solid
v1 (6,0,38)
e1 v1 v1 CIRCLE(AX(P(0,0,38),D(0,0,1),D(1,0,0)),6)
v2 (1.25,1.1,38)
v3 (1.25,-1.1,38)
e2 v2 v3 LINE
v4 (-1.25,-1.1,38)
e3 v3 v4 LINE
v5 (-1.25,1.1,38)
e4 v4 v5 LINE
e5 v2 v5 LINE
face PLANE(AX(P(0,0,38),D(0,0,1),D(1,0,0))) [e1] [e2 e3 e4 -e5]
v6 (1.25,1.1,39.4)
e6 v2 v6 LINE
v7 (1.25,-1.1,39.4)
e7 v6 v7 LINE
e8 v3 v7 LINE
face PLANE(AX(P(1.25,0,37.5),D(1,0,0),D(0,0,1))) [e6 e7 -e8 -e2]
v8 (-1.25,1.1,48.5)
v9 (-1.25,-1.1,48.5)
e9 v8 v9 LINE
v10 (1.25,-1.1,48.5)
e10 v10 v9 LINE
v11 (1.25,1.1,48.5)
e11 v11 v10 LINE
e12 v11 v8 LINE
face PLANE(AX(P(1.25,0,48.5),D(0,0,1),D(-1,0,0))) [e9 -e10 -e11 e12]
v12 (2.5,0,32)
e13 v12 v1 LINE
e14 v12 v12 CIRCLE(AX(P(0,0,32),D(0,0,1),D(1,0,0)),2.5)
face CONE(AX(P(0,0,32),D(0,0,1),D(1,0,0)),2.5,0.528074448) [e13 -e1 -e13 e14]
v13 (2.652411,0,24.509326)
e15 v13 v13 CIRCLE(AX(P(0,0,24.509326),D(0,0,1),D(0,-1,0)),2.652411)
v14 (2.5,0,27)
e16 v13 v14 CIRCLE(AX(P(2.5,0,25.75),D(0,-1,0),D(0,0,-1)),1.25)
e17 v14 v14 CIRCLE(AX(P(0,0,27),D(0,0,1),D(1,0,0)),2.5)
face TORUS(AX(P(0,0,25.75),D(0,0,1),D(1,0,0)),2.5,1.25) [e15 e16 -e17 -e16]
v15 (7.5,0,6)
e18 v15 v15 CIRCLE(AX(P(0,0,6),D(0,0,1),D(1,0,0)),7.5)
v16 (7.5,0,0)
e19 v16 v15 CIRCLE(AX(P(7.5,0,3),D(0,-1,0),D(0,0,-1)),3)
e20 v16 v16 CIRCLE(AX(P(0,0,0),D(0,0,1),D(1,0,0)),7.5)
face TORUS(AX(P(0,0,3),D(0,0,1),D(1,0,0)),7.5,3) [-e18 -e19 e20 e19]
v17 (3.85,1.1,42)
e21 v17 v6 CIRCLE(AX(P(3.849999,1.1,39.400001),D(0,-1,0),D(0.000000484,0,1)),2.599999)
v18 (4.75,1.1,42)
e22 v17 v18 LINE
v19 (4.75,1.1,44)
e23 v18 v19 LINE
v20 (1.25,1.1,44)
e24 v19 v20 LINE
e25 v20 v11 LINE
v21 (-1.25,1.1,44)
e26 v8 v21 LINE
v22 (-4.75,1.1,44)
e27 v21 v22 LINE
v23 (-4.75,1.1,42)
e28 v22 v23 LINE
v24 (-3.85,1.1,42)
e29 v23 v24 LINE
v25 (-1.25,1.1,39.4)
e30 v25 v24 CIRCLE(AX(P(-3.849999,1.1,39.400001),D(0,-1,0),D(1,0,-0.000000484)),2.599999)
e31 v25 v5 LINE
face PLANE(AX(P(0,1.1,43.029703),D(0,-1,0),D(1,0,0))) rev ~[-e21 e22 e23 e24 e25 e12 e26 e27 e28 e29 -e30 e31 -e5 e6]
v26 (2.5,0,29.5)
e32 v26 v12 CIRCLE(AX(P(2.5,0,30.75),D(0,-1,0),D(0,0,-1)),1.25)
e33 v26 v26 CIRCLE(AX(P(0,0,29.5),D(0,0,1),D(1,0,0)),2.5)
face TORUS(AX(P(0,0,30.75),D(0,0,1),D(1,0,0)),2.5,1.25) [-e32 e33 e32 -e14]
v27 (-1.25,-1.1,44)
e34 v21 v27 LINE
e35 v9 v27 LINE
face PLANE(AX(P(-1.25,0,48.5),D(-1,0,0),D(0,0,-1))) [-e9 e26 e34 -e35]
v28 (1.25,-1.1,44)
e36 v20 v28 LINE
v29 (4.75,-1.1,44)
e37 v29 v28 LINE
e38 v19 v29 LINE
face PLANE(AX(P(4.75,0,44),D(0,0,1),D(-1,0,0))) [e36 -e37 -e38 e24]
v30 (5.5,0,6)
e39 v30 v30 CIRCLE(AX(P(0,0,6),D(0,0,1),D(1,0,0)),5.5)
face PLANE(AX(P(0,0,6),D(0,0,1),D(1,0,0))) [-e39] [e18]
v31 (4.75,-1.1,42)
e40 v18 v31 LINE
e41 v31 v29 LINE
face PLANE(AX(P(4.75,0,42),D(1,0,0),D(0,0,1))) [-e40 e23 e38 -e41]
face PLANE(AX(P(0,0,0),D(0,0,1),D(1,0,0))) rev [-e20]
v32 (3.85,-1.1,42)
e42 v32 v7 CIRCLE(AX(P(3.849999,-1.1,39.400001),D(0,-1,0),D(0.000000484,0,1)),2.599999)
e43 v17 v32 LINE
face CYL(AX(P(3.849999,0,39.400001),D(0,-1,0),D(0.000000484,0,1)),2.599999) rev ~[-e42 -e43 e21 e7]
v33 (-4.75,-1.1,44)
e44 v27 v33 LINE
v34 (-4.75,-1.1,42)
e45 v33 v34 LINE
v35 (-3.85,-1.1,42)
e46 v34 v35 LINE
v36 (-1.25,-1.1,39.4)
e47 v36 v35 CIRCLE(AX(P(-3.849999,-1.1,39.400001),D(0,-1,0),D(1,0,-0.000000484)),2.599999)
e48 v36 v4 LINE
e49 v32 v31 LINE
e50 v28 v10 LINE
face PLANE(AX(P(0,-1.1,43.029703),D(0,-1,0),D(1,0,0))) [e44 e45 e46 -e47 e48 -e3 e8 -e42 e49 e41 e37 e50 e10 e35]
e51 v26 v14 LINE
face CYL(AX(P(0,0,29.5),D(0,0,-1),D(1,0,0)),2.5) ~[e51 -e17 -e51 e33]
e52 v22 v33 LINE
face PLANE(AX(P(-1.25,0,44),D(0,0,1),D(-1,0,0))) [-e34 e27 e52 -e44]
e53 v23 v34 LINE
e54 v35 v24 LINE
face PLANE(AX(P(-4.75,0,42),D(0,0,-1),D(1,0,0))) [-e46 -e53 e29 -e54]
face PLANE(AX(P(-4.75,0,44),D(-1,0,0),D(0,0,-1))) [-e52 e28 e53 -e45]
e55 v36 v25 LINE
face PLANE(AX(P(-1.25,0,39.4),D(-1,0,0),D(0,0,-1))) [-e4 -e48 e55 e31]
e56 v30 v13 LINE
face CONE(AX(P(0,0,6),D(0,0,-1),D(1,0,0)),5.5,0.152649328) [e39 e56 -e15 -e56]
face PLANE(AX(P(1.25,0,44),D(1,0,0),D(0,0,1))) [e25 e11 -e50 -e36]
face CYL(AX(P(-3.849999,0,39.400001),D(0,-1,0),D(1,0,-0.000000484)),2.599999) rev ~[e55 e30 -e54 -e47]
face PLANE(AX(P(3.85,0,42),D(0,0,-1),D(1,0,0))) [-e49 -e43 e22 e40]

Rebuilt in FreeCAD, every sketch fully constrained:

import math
import FreeCAD as App
import Part
import Sketcher
from FreeCAD import Vector
Q = App.Units.Quantity

doc = App.newDocument("Part")
body = doc.addObject("PartDesign::Body", "Body")

sketch1 = body.newObject("Sketcher::SketchObject", "Sketch")
sketch1.AttachmentSupport = (doc.getObject("XZ_Plane"), [""])
sketch1.MapMode = "FlatFace"
sketch1.addGeometry([
    Part.LineSegment(Vector(0, 0, 0), Vector(2.5, 0, 0)),
    Part.LineSegment(Vector(2.5, 0, 0), Vector(2.5, 24.5, 0)),
    Part.ArcOfCircle(Part.Circle(Vector(2.5, 25.8, 0), Vector(0, 0, 1), 1.2), math.radians(-90), math.radians(90)),
    Part.LineSegment(Vector(2.5, 27, 0), Vector(2.5, 29.5, 0)),
    Part.ArcOfCircle(Part.Circle(Vector(2.5, 30.8, 0), Vector(0, 0, 1), 1.2), math.radians(-90), math.radians(90)),
    Part.LineSegment(Vector(2.5, 32, 0), Vector(0, 32, 0)),
    Part.LineSegment(Vector(0, 32, 0), Vector(0, 0, 0)),
], False)
sketch1.addConstraint([
    Sketcher.Constraint("Coincident", 0, 2, 1, 1),
    Sketcher.Constraint("Coincident", 1, 2, 2, 1),
    Sketcher.Constraint("Coincident", 2, 2, 3, 1),
    Sketcher.Constraint("Coincident", 3, 2, 4, 1),
    Sketcher.Constraint("Tangent", 4, 2, 5, 1),
    Sketcher.Constraint("Coincident", 5, 2, 6, 1),
    Sketcher.Constraint("Coincident", 6, 2, 0, 1),
    Sketcher.Constraint("Horizontal", 0),
    Sketcher.Constraint("Vertical", 1),
    Sketcher.Constraint("Vertical", 3),
    Sketcher.Constraint("Horizontal", 5),
    Sketcher.Constraint("Vertical", 6),
    Sketcher.Constraint("Coincident", 6, 2, -1, 1),
    Sketcher.Constraint("Equal", 2, 4),
    Sketcher.Constraint("Vertical", 2, 3, 4, 3),
    Sketcher.Constraint("Vertical", 4, 3, 0, 2),
    Sketcher.Constraint("Vertical", 1, 2, 2, 2),
    Sketcher.Constraint("Equal", 5, 3),
    Sketcher.Constraint("DistanceY", 6, 2, 6, 1, Q("32 mm")),
    Sketcher.Constraint("Radius", 2, Q("1.25 mm")),
    Sketcher.Constraint("DistanceX", 0, 1, 0, 2, Q("2.5 mm")),
])
revolution = body.newObject("PartDesign::Revolution", "Revolution")
revolution.Profile = sketch1
revolution.ReferenceAxis = (sketch1, ["V_Axis"])
revolution.Angle = 360
body2 = doc.addObject("PartDesign::Body", "Body001")

sketch2 = body2.newObject("Sketcher::SketchObject", "Sketch001")
sketch2.AttachmentSupport = (doc.getObject("XZ_Plane001"), [""])
sketch2.MapMode = "FlatFace"
sketch2.addGeometry([
    Part.LineSegment(Vector(0, 0, 0), Vector(7.5, 0, 0)),
    Part.ArcOfCircle(Part.Circle(Vector(7.5, 3, 0), Vector(0, 0, 1), 3), math.radians(-90), math.radians(90)),
    Part.LineSegment(Vector(7.5, 6, 0), Vector(5.5, 6, 0)),
    Part.LineSegment(Vector(5.5, 6, 0), Vector(2.5, 25.5, 0)),
    Part.LineSegment(Vector(2.5, 25.5, 0), Vector(2.5, 32, 0)),
    Part.LineSegment(Vector(2.5, 32, 0), Vector(6, 38, 0)),
    Part.LineSegment(Vector(6, 38, 0), Vector(0, 38, 0)),
    Part.LineSegment(Vector(0, 38, 0), Vector(0, 0, 0)),
], False)
sketch2.addConstraint([
    Sketcher.Constraint("Tangent", 0, 2, 1, 1),
    Sketcher.Constraint("Tangent", 1, 2, 2, 1),
    Sketcher.Constraint("Coincident", 2, 2, 3, 1),
    Sketcher.Constraint("Coincident", 3, 2, 4, 1),
    Sketcher.Constraint("Coincident", 4, 2, 5, 1),
    Sketcher.Constraint("Coincident", 5, 2, 6, 1),
    Sketcher.Constraint("Coincident", 6, 2, 7, 1),
    Sketcher.Constraint("Coincident", 7, 2, 0, 1),
    Sketcher.Constraint("Horizontal", 0),
    Sketcher.Constraint("Horizontal", 2),
    Sketcher.Constraint("Vertical", 4),
    Sketcher.Constraint("Horizontal", 6),
    Sketcher.Constraint("Vertical", 7),
    Sketcher.Constraint("Coincident", 7, 2, -1, 1),
    Sketcher.Constraint("Radius", 1, Q("3 mm")),
    Sketcher.Constraint("DistanceX", 2, 2, 2, 1, Q("2 mm")),
    Sketcher.Constraint("DistanceX", 6, 2, 6, 1, Q("6 mm")),
    Sketcher.Constraint("DistanceY", 7, 2, 7, 1, Q("38 mm")),
    Sketcher.Constraint("DistanceX", 0, 1, 0, 2, Q("7.5 mm")),
    Sketcher.Constraint("DistanceY", 4, 1, 4, 2, Q("6.5 mm")),
    Sketcher.Constraint("DistanceY", -1, 1, 4, 2, Q("32 mm")),
    Sketcher.Constraint("DistanceX", 3, 2, 2, 2, Q("3 mm")),
])
revolution2 = body2.newObject("PartDesign::Revolution", "Revolution001")
revolution2.Profile = sketch2
revolution2.ReferenceAxis = (sketch2, ["V_Axis"])
revolution2.Angle = 360
body3 = doc.addObject("PartDesign::Body", "Body002")
body3.AllowCompound = True

sketch3 = body3.newObject("Sketcher::SketchObject", "Sketch002")
sketch3.AttachmentSupport = (doc.getObject("XZ_Plane002"), [""])
sketch3.MapMode = "FlatFace"
sketch3.addGeometry([
    Part.LineSegment(Vector(-1.2, 37.5, 0), Vector(1.2, 37.5, 0)),
    Part.LineSegment(Vector(1.2, 37.5, 0), Vector(1.2, 39.4, 0)),
    Part.ArcOfCircle(Part.Circle(Vector(3.8, 39.4, 0), Vector(0, 0, 1), 2.6), math.radians(90), math.radians(180)),
    Part.LineSegment(Vector(3.9, 42, 0), Vector(4.8, 42, 0)),
    Part.LineSegment(Vector(4.8, 42, 0), Vector(4.8, 44, 0)),
    Part.LineSegment(Vector(4.8, 44, 0), Vector(1.2, 44, 0)),
    Part.LineSegment(Vector(1.2, 44, 0), Vector(1.2, 48.5, 0)),
    Part.LineSegment(Vector(1.2, 48.5, 0), Vector(-1.2, 48.5, 0)),
    Part.LineSegment(Vector(-1.2, 48.5, 0), Vector(-1.2, 44, 0)),
    Part.LineSegment(Vector(-1.2, 44, 0), Vector(-4.8, 44, 0)),
    Part.LineSegment(Vector(-4.8, 44, 0), Vector(-4.8, 42, 0)),
    Part.LineSegment(Vector(-4.8, 42, 0), Vector(-3.9, 42, 0)),
    Part.ArcOfCircle(Part.Circle(Vector(-3.8, 39.4, 0), Vector(0, 0, 1), 2.6), math.radians(0), math.radians(90)),
    Part.LineSegment(Vector(-1.2, 39.4, 0), Vector(-1.2, 37.5, 0)),
], False)
sketch3.addConstraint([
    Sketcher.Constraint("Coincident", 0, 2, 1, 1),
    Sketcher.Constraint("Tangent", 1, 2, 2, 2),
    Sketcher.Constraint("Tangent", 2, 1, 3, 1),
    Sketcher.Constraint("Coincident", 3, 2, 4, 1),
    Sketcher.Constraint("Coincident", 4, 2, 5, 1),
    Sketcher.Constraint("Coincident", 5, 2, 6, 1),
    Sketcher.Constraint("Coincident", 6, 2, 7, 1),
    Sketcher.Constraint("Coincident", 7, 2, 8, 1),
    Sketcher.Constraint("Coincident", 8, 2, 9, 1),
    Sketcher.Constraint("Coincident", 9, 2, 10, 1),
    Sketcher.Constraint("Coincident", 10, 2, 11, 1),
    Sketcher.Constraint("Tangent", 11, 2, 12, 2),
    Sketcher.Constraint("Tangent", 12, 1, 13, 1),
    Sketcher.Constraint("Coincident", 13, 2, 0, 1),
    Sketcher.Constraint("Horizontal", 0),
    Sketcher.Constraint("Vertical", 1),
    Sketcher.Constraint("Horizontal", 3),
    Sketcher.Constraint("Vertical", 4),
    Sketcher.Constraint("Horizontal", 5),
    Sketcher.Constraint("Vertical", 6),
    Sketcher.Constraint("Horizontal", 7),
    Sketcher.Constraint("Vertical", 8),
    Sketcher.Constraint("Horizontal", 9),
    Sketcher.Constraint("Vertical", 10),
    Sketcher.Constraint("Horizontal", 11),
    Sketcher.Constraint("Vertical", 13),
    Sketcher.Constraint("Equal", 2, 12),
    Sketcher.Constraint("Symmetric", 2, 3, 12, 3, -2),
    Sketcher.Constraint("Symmetric", 5, 2, 8, 2, -2),
    Sketcher.Constraint("Vertical", 1, 2, 5, 2),
    Sketcher.Constraint("Equal", 5, 9),
    Sketcher.Constraint("Radius", 2, Q("2.599999 mm")),
    Sketcher.Constraint("DistanceY", 4, 1, 4, 2, Q("2 mm")),
    Sketcher.Constraint("DistanceX", 0, 1, 0, 2, Q("2.5 mm")),
    Sketcher.Constraint("DistanceX", 3, 1, 3, 2, Q("0.9 mm")),
    Sketcher.Constraint("DistanceY", 1, 1, 1, 2, Q("1.9 mm")),
    Sketcher.Constraint("DistanceY", 6, 1, 6, 2, Q("4.5 mm")),
    Sketcher.Constraint("DistanceY", -1, 1, 2, 1, Q("42 mm")),
])
pad1 = body3.newObject("PartDesign::Pad", "Pad")
pad1.Profile = sketch3
pad1.Length = 2.2
pad1.Midplane = True
doc.recompute()

boolean = body3.newObject("PartDesign::Boolean", "Boolean")
boolean.Type = "Fuse"
boolean.addObjects([body])
doc.recompute()

boolean2 = body3.newObject("PartDesign::Boolean", "Boolean001")
boolean2.Type = "Fuse"
boolean2.addObjects([body2])

doc.recompute()
